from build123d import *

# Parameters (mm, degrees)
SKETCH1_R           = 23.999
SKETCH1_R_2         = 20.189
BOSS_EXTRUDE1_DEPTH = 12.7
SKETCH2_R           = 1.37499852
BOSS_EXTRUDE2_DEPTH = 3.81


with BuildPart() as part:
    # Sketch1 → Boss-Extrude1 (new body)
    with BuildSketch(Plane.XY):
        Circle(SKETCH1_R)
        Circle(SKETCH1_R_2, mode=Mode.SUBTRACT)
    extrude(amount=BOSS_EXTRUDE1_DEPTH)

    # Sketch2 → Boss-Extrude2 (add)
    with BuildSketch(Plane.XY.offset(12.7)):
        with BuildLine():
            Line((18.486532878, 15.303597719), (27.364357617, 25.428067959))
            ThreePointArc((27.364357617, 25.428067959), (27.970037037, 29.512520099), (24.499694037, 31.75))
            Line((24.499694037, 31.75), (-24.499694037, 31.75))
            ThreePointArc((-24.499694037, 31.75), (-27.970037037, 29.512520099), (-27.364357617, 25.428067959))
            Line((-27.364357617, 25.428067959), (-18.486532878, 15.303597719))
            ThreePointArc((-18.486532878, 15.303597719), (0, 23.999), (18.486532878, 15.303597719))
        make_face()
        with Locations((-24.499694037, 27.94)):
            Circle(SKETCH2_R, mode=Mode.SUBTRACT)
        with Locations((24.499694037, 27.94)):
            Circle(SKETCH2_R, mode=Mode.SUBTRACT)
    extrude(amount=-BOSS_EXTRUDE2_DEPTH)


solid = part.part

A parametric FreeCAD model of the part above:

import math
import FreeCAD as App
import Part
import Sketcher

V = App.Vector
Q = App.Units.Quantity

doc = App.newDocument("Part")
body = doc.addObject("PartDesign::Body", "Body")

sketch1 = body.newObject("Sketcher::SketchObject", "Sketch")
sketch1.AttachmentSupport = (doc.getObject("XY_Plane"), [""])
sketch1.MapMode = "FlatFace"
sketch1.addGeometry(Part.Circle(V(0, 0, 0), V(0, 0, 1), 24), False)
sketch1.addGeometry(Part.Circle(V(0, 0, 0), V(0, 0, 1), 20), False)
sketch1.addConstraint(Sketcher.Constraint("Coincident", 0, 3, -1, 1))
sketch1.addConstraint(Sketcher.Constraint("Coincident", 1, 3, -1, 1))
sketch1.addConstraint(Sketcher.Constraint("Diameter", 0, 47.998))
sketch1.addConstraint(Sketcher.Constraint("Diameter", 1, 40.378))
pad1 = body.newObject("PartDesign::Pad", "Pad")
pad1.Profile = sketch1
pad1.Length = Q("0.5 in")

sketch2 = body.newObject("Sketcher::SketchObject", "Sketch001")
sketch2.AttachmentSupport = (doc.getObject("XY_Plane"), [""])
sketch2.MapMode = "FlatFace"
sketch2.AttachmentOffset = App.Placement(V(0, 0, 0.5 * 25.4), App.Rotation())
sketch2.addGeometry(Part.LineSegment(V(18.5, 15.3, 0), V(27.4, 25.4, 0)), False)
sketch2.addGeometry(Part.ArcOfCircle(Part.Circle(V(24.5, 27.9, 0), V(0, 0, 1), 3.8), math.radians(-41), math.radians(90)), False)
sketch2.addGeometry(Part.LineSegment(V(24.5, 31.8, 0), V(-24.5, 31.8, 0)), False)
sketch2.addGeometry(Part.ArcOfCircle(Part.Circle(V(-24.5, 27.9, 0), V(0, 0, 1), 3.8), math.radians(90), math.radians(221)), False)
sketch2.addGeometry(Part.LineSegment(V(-27.4, 25.4, 0), V(-18.5, 15.3, 0)), False)
sketch2.addGeometry(Part.ArcOfCircle(Part.Circle(V(0, 0, 0), V(0, 0, 1), 24), math.radians(40), math.radians(140)), False)
sketch2.addGeometry(Part.Circle(V(-24.5, 27.9, 0), V(0, 0, 1), 1.4), False)
sketch2.addGeometry(Part.Circle(V(24.5, 27.9, 0), V(0, 0, 1), 1.4), False)
sketch2.addConstraint(Sketcher.Constraint("Tangent", 0, 2, 1, 1))
sketch2.addConstraint(Sketcher.Constraint("Tangent", 1, 2, 2, 1))
sketch2.addConstraint(Sketcher.Constraint("Tangent", 2, 2, 3, 1))
sketch2.addConstraint(Sketcher.Constraint("Tangent", 3, 2, 4, 1))
sketch2.addConstraint(Sketcher.Constraint("Coincident", 4, 2, 5, 2))
sketch2.addConstraint(Sketcher.Constraint("Coincident", 5, 1, 0, 1))
sketch2.addConstraint(Sketcher.Constraint("Horizontal", 2))
sketch2.addConstraint(Sketcher.Constraint("Coincident", 5, 3, -1, 1))
sketch2.addConstraint(Sketcher.Constraint("Coincident", 6, 3, 3, 3))
sketch2.addConstraint(Sketcher.Constraint("Coincident", 7, 3, 1, 3))
sketch2.addConstraint(Sketcher.Constraint("Equal", 1, 3))
sketch2.addConstraint(Sketcher.Constraint("Equal", 6, 7))
sketch2.addConstraint(Sketcher.Constraint("Symmetric", 0, 2, 3, 2, -2))
sketch2.addConstraint(Sketcher.Constraint("Radius", 1, Q("0.15 in")))
sketch2.addConstraint(Sketcher.Constraint("DistanceY", -1, 1, 1, 3, Q("1.1 in")))
sketch2.addConstraint(Sketcher.Constraint("Radius", 5, 23.999))
sketch2.addConstraint(Sketcher.Constraint("Diameter", 6, 2.749997))
sketch2.addConstraint(Sketcher.Constraint("DistanceX", 2, 2, 2, 1, 48.999388))
sketch2.addConstraint(Sketcher.Constraint("DistanceX", 3, 3, 0, 2, 51.864052))
pad2 = body.newObject("PartDesign::Pad", "Pad001")
pad2.Profile = sketch2
pad2.Length = Q("0.15 in")
pad2.Reversed = True

doc.recompute()
